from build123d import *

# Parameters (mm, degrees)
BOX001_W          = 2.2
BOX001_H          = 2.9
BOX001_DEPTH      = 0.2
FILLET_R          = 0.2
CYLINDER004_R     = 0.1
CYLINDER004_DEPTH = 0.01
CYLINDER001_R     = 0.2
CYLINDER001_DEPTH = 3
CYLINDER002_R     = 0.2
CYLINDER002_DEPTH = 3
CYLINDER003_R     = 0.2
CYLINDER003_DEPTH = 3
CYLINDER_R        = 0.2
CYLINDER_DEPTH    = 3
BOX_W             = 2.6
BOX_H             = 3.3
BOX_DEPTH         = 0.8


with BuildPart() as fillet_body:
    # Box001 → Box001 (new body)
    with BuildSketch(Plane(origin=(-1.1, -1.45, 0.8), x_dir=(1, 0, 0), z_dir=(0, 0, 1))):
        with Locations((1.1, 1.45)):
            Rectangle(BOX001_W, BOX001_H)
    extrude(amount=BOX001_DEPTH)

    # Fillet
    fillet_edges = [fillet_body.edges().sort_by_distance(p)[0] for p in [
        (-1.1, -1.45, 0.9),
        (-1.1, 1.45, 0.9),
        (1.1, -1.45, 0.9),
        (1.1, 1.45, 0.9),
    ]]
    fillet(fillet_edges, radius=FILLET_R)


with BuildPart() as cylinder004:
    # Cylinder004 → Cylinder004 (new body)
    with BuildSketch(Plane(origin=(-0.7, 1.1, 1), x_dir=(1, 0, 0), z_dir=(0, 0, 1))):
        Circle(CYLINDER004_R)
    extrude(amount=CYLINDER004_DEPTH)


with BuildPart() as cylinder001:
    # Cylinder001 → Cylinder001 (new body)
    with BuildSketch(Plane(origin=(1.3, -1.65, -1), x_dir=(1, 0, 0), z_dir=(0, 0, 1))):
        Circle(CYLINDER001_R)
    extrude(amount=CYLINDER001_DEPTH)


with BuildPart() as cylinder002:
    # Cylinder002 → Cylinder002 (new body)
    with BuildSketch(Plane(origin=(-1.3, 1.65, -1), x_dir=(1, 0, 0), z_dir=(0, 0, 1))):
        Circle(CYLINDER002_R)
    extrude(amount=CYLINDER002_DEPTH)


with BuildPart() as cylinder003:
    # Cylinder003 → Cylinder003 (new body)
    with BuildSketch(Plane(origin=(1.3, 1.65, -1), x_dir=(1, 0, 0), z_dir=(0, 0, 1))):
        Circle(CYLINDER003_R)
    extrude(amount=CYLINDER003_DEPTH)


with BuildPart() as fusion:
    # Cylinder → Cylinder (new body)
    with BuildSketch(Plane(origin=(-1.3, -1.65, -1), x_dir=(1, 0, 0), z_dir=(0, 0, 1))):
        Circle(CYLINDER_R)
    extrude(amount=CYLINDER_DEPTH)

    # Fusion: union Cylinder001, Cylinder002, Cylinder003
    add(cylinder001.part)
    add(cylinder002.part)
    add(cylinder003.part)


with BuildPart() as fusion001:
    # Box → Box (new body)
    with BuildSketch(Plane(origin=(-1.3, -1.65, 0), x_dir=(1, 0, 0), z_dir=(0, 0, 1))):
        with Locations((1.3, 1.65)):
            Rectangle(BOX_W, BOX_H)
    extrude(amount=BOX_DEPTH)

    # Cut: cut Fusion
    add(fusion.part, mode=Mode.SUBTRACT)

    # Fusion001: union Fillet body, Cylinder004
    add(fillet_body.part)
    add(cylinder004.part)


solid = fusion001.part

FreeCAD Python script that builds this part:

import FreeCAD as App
import Part
import Sketcher


def edges_at(feature, points):
    """Names of the edges that pass closest to the given points."""
    edges = feature.Shape.Edges
    near = lambda p: min(range(len(edges)), key=lambda i: edges[i].distToShape(Part.Vertex(*p))[0])
    return sorted({f"Edge{near(p) + 1}" for p in points})


def add_polygon(sketch, points):
    """Adds a closed chain of lines whose ends are joined by coincident constraints."""
    first, n = sketch.GeometryCount, len(points)
    for a, b in zip(points, points[1:] + points[:1]):
        sketch.addGeometry(Part.LineSegment(App.Vector(*a, 0), App.Vector(*b, 0)), False)
    for i in range(n):
        sketch.addConstraint(Sketcher.Constraint("Coincident", first + i, 2, first + (i + 1) % n, 1))

doc = App.newDocument("Part")
body = doc.addObject("PartDesign::Body", "Body")

sketch1 = doc.addObject("Sketcher::SketchObject", "Sketch")
body.addObject(sketch1)
sketch1.AttachmentSupport = (doc.XY_Plane, [""])
sketch1.MapMode = "FlatFace"
sketch1.AttachmentOffset = App.Placement(App.Vector(0, 0, 0.8), App.Rotation())
add_polygon(sketch1, [(-1.1, 1.4), (-1.1, -1.4), (1.1, -1.4), (1.1, 1.4)])
sketch1.addConstraint([
    Sketcher.Constraint("Vertical", 0),
    Sketcher.Constraint("Horizontal", 1),
    Sketcher.Constraint("Vertical", 2),
    Sketcher.Constraint("Horizontal", 3),
    Sketcher.Constraint("Symmetric", 0, 2, 2, 2, -1, 1),
    Sketcher.Constraint("DistanceX", 1, 1, 1, 2, 2.2),
    Sketcher.Constraint("DistanceY", 0, 2, 0, 1, 2.9),
])
pad1 = doc.addObject("PartDesign::Pad", "Pad")
body.addObject(pad1)
pad1.Profile = sketch1
pad1.Length = 0.2
doc.recompute()

fillet = doc.addObject("PartDesign::Fillet", "Fillet")
body.addObject(fillet)
fillet.Base = (pad1, edges_at(pad1, [
    (-1.1, -1.45, 0.9),
    (-1.1, 1.45, 0.9),
    (1.1, -1.45, 0.9),
    (1.1, 1.45, 0.9),
]))
fillet.Radius = 0.2
body2 = doc.addObject("PartDesign::Body", "Body001")

sketch2 = doc.addObject("Sketcher::SketchObject", "Sketch001")
body2.addObject(sketch2)
sketch2.AttachmentSupport = (doc.getObject("XY_Plane001"), [""])
sketch2.MapMode = "FlatFace"
sketch2.AttachmentOffset = App.Placement(App.Vector(0, 0, 1), App.Rotation())
sketch2.addGeometry(Part.Circle(App.Vector(-0.7, 1.1, 0), App.Vector(0, 0, 1), 0.1), False)
sketch2.addConstraint([
    Sketcher.Constraint("Diameter", 0, 0.2),
    Sketcher.Constraint("DistanceX", 0, 3, -1, 1, 0.7),
    Sketcher.Constraint("DistanceY", -1, 1, 0, 3, 1.1),
])
pad2 = doc.addObject("PartDesign::Pad", "Pad001")
body2.addObject(pad2)
pad2.Profile = sketch2
pad2.Length = 0.01
body3 = doc.addObject("PartDesign::Body", "Body002")

sketch3 = doc.addObject("Sketcher::SketchObject", "Sketch002")
body3.addObject(sketch3)
sketch3.AttachmentSupport = (doc.getObject("XY_Plane002"), [""])
sketch3.MapMode = "FlatFace"
sketch3.AttachmentOffset = App.Placement(App.Vector(0, 0, -1), App.Rotation())
sketch3.addGeometry(Part.Circle(App.Vector(1.3, -1.65, 0), App.Vector(0, 0, 1), 0.2), False)
sketch3.addConstraint([
    Sketcher.Constraint("Diameter", 0, 0.4),
    Sketcher.Constraint("DistanceX", -1, 1, 0, 3, 1.3),
    Sketcher.Constraint("DistanceY", 0, 3, -1, 1, 1.65),
])
pad3 = doc.addObject("PartDesign::Pad", "Pad002")
body3.addObject(pad3)
pad3.Profile = sketch3
pad3.Length = 3
body4 = doc.addObject("PartDesign::Body", "Body003")

sketch4 = doc.addObject("Sketcher::SketchObject", "Sketch003")
body4.addObject(sketch4)
sketch4.AttachmentSupport = (doc.getObject("XY_Plane003"), [""])
sketch4.MapMode = "FlatFace"
sketch4.AttachmentOffset = App.Placement(App.Vector(0, 0, -1), App.Rotation())
sketch4.addGeometry(Part.Circle(App.Vector(-1.3, 1.65, 0), App.Vector(0, 0, 1), 0.2), False)
sketch4.addConstraint([
    Sketcher.Constraint("Diameter", 0, 0.4),
    Sketcher.Constraint("DistanceX", 0, 3, -1, 1, 1.3),
    Sketcher.Constraint("DistanceY", -1, 1, 0, 3, 1.65),
])
pad4 = doc.addObject("PartDesign::Pad", "Pad003")
body4.addObject(pad4)
pad4.Profile = sketch4
pad4.Length = 3
body5 = doc.addObject("PartDesign::Body", "Body004")

sketch5 = doc.addObject("Sketcher::SketchObject", "Sketch004")
body5.addObject(sketch5)
sketch5.AttachmentSupport = (doc.getObject("XY_Plane004"), [""])
sketch5.MapMode = "FlatFace"
sketch5.AttachmentOffset = App.Placement(App.Vector(0, 0, -1), App.Rotation())
sketch5.addGeometry(Part.Circle(App.Vector(1.3, 1.65, 0), App.Vector(0, 0, 1), 0.2), False)
sketch5.addConstraint([
    Sketcher.Constraint("Diameter", 0, 0.4),
    Sketcher.Constraint("DistanceX", -1, 1, 0, 3, 1.3),
    Sketcher.Constraint("DistanceY", -1, 1, 0, 3, 1.65),
])
pad5 = doc.addObject("PartDesign::Pad", "Pad004")
body5.addObject(pad5)
pad5.Profile = sketch5
pad5.Length = 3
body6 = doc.addObject("PartDesign::Body", "Body005")
body6.AllowCompound = True

sketch6 = doc.addObject("Sketcher::SketchObject", "Sketch005")
body6.addObject(sketch6)
sketch6.AttachmentSupport = (doc.getObject("XY_Plane005"), [""])
sketch6.MapMode = "FlatFace"
sketch6.AttachmentOffset = App.Placement(App.Vector(0, 0, -1), App.Rotation())
sketch6.addGeometry(Part.Circle(App.Vector(-1.3, -1.65, 0), App.Vector(0, 0, 1), 0.2), False)
sketch6.addConstraint([
    Sketcher.Constraint("Diameter", 0, 0.4),
    Sketcher.Constraint("DistanceX", 0, 3, -1, 1, 1.3),
    Sketcher.Constraint("DistanceY", 0, 3, -1, 1, 1.65),
])
pad6 = doc.addObject("PartDesign::Pad", "Pad005")
body6.addObject(pad6)
pad6.Profile = sketch6
pad6.Length = 3
doc.recompute()

boolean = doc.addObject("PartDesign::Boolean", "Boolean")
body6.addObject(boolean)
boolean.Type = "Fuse"
boolean.addObjects([body3])
doc.recompute()

boolean2 = doc.addObject("PartDesign::Boolean", "Boolean001")
body6.addObject(boolean2)
boolean2.Type = "Fuse"
boolean2.addObjects([body4])
doc.recompute()

boolean3 = doc.addObject("PartDesign::Boolean", "Boolean002")
body6.addObject(boolean3)
boolean3.Type = "Fuse"
boolean3.addObjects([body5])
body7 = doc.addObject("PartDesign::Body", "Body006")

sketch7 = doc.addObject("Sketcher::SketchObject", "Sketch006")
body7.addObject(sketch7)
sketch7.AttachmentSupport = (doc.getObject("XY_Plane006"), [""])
sketch7.MapMode = "FlatFace"
add_polygon(sketch7, [(-1.3, 1.6), (-1.3, -1.6), (1.3, -1.6), (1.3, 1.6)])
sketch7.addConstraint([
    Sketcher.Constraint("Vertical", 0),
    Sketcher.Constraint("Horizontal", 1),
    Sketcher.Constraint("Vertical", 2),
    Sketcher.Constraint("Horizontal", 3),
    Sketcher.Constraint("Symmetric", 0, 2, 2, 2, -1, 1),
    Sketcher.Constraint("DistanceX", 1, 1, 1, 2, 2.6),
    Sketcher.Constraint("DistanceY", 0, 2, 0, 1, 3.3),
])
pad7 = doc.addObject("PartDesign::Pad", "Pad006")
body7.addObject(pad7)
pad7.Profile = sketch7
pad7.Length = 0.8
doc.recompute()

boolean4 = doc.addObject("PartDesign::Boolean", "Boolean003")
body7.addObject(boolean4)
boolean4.Type = "Cut"
boolean4.addObjects([body6])
doc.recompute()

boolean5 = doc.addObject("PartDesign::Boolean", "Boolean004")
body7.addObject(boolean5)
boolean5.Type = "Fuse"
boolean5.addObjects([body])
doc.recompute()

boolean6 = doc.addObject("PartDesign::Boolean", "Boolean005")
body7.addObject(boolean6)
boolean6.Type = "Fuse"
boolean6.addObjects([body2])

doc.recompute()
